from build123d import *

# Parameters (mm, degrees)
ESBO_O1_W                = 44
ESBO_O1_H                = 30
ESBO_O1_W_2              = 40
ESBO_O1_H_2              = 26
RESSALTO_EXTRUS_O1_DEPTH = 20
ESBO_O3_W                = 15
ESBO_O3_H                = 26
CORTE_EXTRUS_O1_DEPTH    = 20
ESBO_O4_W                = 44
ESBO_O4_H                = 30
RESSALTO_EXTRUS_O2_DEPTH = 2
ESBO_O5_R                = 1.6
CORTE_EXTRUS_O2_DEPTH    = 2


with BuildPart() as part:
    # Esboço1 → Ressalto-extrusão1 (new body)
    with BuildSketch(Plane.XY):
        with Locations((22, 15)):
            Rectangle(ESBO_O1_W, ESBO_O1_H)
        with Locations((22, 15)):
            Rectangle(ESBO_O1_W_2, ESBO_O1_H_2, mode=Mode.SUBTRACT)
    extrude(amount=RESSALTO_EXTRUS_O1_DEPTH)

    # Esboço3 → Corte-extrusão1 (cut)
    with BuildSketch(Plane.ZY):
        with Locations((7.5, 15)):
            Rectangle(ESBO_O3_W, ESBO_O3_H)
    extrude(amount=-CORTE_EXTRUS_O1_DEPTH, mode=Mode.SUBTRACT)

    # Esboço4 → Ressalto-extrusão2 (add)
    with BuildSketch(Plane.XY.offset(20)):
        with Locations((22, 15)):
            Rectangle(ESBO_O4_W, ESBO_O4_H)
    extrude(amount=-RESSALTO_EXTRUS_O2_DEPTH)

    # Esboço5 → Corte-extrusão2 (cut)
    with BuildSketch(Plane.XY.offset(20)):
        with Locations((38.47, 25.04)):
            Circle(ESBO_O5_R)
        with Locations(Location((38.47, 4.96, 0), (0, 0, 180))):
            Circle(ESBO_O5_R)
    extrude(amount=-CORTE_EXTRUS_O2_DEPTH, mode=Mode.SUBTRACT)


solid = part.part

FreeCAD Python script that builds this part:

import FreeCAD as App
import Part
import Sketcher

V = App.Vector

doc = App.newDocument("Part")
params = doc.addObject("Spreadsheet::Sheet", "Params")
for row, (alias, value) in enumerate([
    ("sketch1_width", "44 mm"),
    ("sketch1_width2", "40 mm"),
    ("sketch1_height", "30 mm"),
    ("sketch1_height2", "26 mm"),
    ("pad1_length", "20 mm"),
    ("sketch2_width", "26 mm"),
    ("sketch2_height", "15 mm"),
    ("pocket1_length", "20 mm"),
    ("sketch3_width", "44 mm"),
    ("sketch3_height", "30 mm"),
    ("pad2_length", "2 mm"),
    ("sketch4_diameter", "3.2 mm"),
    ("pocket2_length", "2 mm"),
], start=1):
    params.set(f"A{row}", alias)
    params.set(f"B{row}", "=" + value)
    params.setAlias(f"B{row}", alias)

body = doc.addObject("PartDesign::Body", "Body")

sketch1 = doc.addObject("Sketcher::SketchObject", "Sketch")
body.addObject(sketch1)
sketch1.AttachmentSupport = (doc.XY_Plane, [""])
sketch1.MapMode = "FlatFace"
sketch1.addGeometry(Part.LineSegment(V(0, 30, 0), V(0, 0, 0)), False)
sketch1.addGeometry(Part.LineSegment(V(0, 0, 0), V(44, 0, 0)), False)
sketch1.addGeometry(Part.LineSegment(V(44, 0, 0), V(44, 30, 0)), False)
sketch1.addGeometry(Part.LineSegment(V(44, 30, 0), V(0, 30, 0)), False)
sketch1.addGeometry(Part.LineSegment(V(42, 2, 0), V(2, 2, 0)), False)
sketch1.addGeometry(Part.LineSegment(V(2, 2, 0), V(2, 28, 0)), False)
sketch1.addGeometry(Part.LineSegment(V(2, 28, 0), V(42, 28, 0)), False)
sketch1.addGeometry(Part.LineSegment(V(42, 28, 0), V(42, 2, 0)), False)
sketch1.addConstraint(Sketcher.Constraint("Coincident", 0, 2, 1, 1))
sketch1.addConstraint(Sketcher.Constraint("Coincident", 1, 2, 2, 1))
sketch1.addConstraint(Sketcher.Constraint("Coincident", 2, 2, 3, 1))
sketch1.addConstraint(Sketcher.Constraint("Coincident", 3, 2, 0, 1))
sketch1.addConstraint(Sketcher.Constraint("Coincident", 4, 2, 5, 1))
sketch1.addConstraint(Sketcher.Constraint("Coincident", 5, 2, 6, 1))
sketch1.addConstraint(Sketcher.Constraint("Coincident", 6, 2, 7, 1))
sketch1.addConstraint(Sketcher.Constraint("Coincident", 7, 2, 4, 1))
sketch1.addConstraint(Sketcher.Constraint("Vertical", 0))
sketch1.addConstraint(Sketcher.Constraint("Horizontal", 1))
sketch1.addConstraint(Sketcher.Constraint("Vertical", 2))
sketch1.addConstraint(Sketcher.Constraint("Horizontal", 3))
sketch1.addConstraint(Sketcher.Constraint("Horizontal", 4))
sketch1.addConstraint(Sketcher.Constraint("Vertical", 5))
sketch1.addConstraint(Sketcher.Constraint("Horizontal", 6))
sketch1.addConstraint(Sketcher.Constraint("Vertical", 7))
sketch1.addConstraint(Sketcher.Constraint("Coincident", 0, 2, -1, 1))
sketch1.addConstraint(Sketcher.Constraint("DistanceX", 1, 1, 1, 2, 44.0))
sketch1.addConstraint(Sketcher.Constraint("DistanceX", 4, 2, 4, 1, 40.0))
sketch1.addConstraint(Sketcher.Constraint("DistanceY", 0, 2, 0, 1, 30.0))
sketch1.addConstraint(Sketcher.Constraint("DistanceY", 5, 1, 5, 2, 26.0))
sketch1.addConstraint(Sketcher.Constraint("DistanceX", -1, 1, 4, 2, 2.0))
sketch1.addConstraint(Sketcher.Constraint("DistanceY", -1, 1, 4, 2, 2.0))
sketch1.setExpression("Constraints[17]", "Params.sketch1_width")
sketch1.setExpression("Constraints[18]", "Params.sketch1_width2")
sketch1.setExpression("Constraints[19]", "Params.sketch1_height")
sketch1.setExpression("Constraints[20]", "Params.sketch1_height2")
pad1 = doc.addObject("PartDesign::Pad", "Pad")
body.addObject(pad1)
pad1.Profile = sketch1
pad1.setExpression("Length", "Params.pad1_length")

sketch2 = doc.addObject("Sketcher::SketchObject", "Sketch001")
body.addObject(sketch2)
sketch2.AttachmentSupport = (doc.YZ_Plane, [""])
sketch2.MapMode = "FlatFace"
sketch2.addGeometry(Part.LineSegment(V(28, 0, 0), V(2, 0, 0)), False)
sketch2.addGeometry(Part.LineSegment(V(2, 0, 0), V(2, 15, 0)), False)
sketch2.addGeometry(Part.LineSegment(V(2, 15, 0), V(28, 15, 0)), False)
sketch2.addGeometry(Part.LineSegment(V(28, 15, 0), V(28, 0, 0)), False)
sketch2.addConstraint(Sketcher.Constraint("Coincident", 0, 2, 1, 1))
sketch2.addConstraint(Sketcher.Constraint("Coincident", 1, 2, 2, 1))
sketch2.addConstraint(Sketcher.Constraint("Coincident", 2, 2, 3, 1))
sketch2.addConstraint(Sketcher.Constraint("Coincident", 3, 2, 0, 1))
sketch2.addConstraint(Sketcher.Constraint("Horizontal", 0))
sketch2.addConstraint(Sketcher.Constraint("Vertical", 1))
sketch2.addConstraint(Sketcher.Constraint("Horizontal", 2))
sketch2.addConstraint(Sketcher.Constraint("Vertical", 3))
sketch2.addConstraint(Sketcher.Constraint("PointOnObject", 0, 2, -1))
sketch2.addConstraint(Sketcher.Constraint("DistanceX", 0, 2, 0, 1, 26.0))
sketch2.addConstraint(Sketcher.Constraint("DistanceY", 1, 1, 1, 2, 15.0))
sketch2.addConstraint(Sketcher.Constraint("DistanceX", -1, 1, 0, 2, 2.0))
sketch2.setExpression("Constraints[9]", "Params.sketch2_width")
sketch2.setExpression("Constraints[10]", "Params.sketch2_height")
pocket1 = doc.addObject("PartDesign::Pocket", "Pocket")
body.addObject(pocket1)
pocket1.Profile = sketch2
pocket1.setExpression("Length", "Params.pocket1_length")
pocket1.Reversed = True

sketch3 = doc.addObject("Sketcher::SketchObject", "Sketch002")
body.addObject(sketch3)
sketch3.AttachmentSupport = (doc.XY_Plane, [""])
sketch3.MapMode = "FlatFace"
sketch3.AttachmentOffset = App.Placement(V(0, 0, 20), App.Rotation())
sketch3.addGeometry(Part.LineSegment(V(0, 30, 0), V(0, 0, 0)), False)
sketch3.addGeometry(Part.LineSegment(V(0, 0, 0), V(44, 0, 0)), False)
sketch3.addGeometry(Part.LineSegment(V(44, 0, 0), V(44, 30, 0)), False)
sketch3.addGeometry(Part.LineSegment(V(44, 30, 0), V(0, 30, 0)), False)
sketch3.addConstraint(Sketcher.Constraint("Coincident", 0, 2, 1, 1))
sketch3.addConstraint(Sketcher.Constraint("Coincident", 1, 2, 2, 1))
sketch3.addConstraint(Sketcher.Constraint("Coincident", 2, 2, 3, 1))
sketch3.addConstraint(Sketcher.Constraint("Coincident", 3, 2, 0, 1))
sketch3.addConstraint(Sketcher.Constraint("Vertical", 0))
sketch3.addConstraint(Sketcher.Constraint("Horizontal", 1))
sketch3.addConstraint(Sketcher.Constraint("Vertical", 2))
sketch3.addConstraint(Sketcher.Constraint("Horizontal", 3))
sketch3.addConstraint(Sketcher.Constraint("Coincident", 0, 2, -1, 1))
sketch3.addConstraint(Sketcher.Constraint("DistanceX", 1, 1, 1, 2, 44.0))
sketch3.addConstraint(Sketcher.Constraint("DistanceY", 0, 2, 0, 1, 30.0))
sketch3.setExpression("Constraints[9]", "Params.sketch3_width")
sketch3.setExpression("Constraints[10]", "Params.sketch3_height")
pad2 = doc.addObject("PartDesign::Pad", "Pad001")
body.addObject(pad2)
pad2.Profile = sketch3
pad2.setExpression("Length", "Params.pad2_length")
pad2.Reversed = True

sketch4 = doc.addObject("Sketcher::SketchObject", "Sketch003")
body.addObject(sketch4)
sketch4.AttachmentSupport = (doc.XY_Plane, [""])
sketch4.MapMode = "FlatFace"
sketch4.AttachmentOffset = App.Placement(V(0, 0, 20), App.Rotation())
sketch4.addGeometry(Part.Circle(V(38.5, 25, 0), V(0, 0, 1), 1.6), False)
sketch4.addGeometry(Part.Circle(V(38.5, 5, 0), V(0, 0, 1), 1.6), False)
sketch4.addConstraint(Sketcher.Constraint("Equal", 0, 1))
sketch4.addConstraint(Sketcher.Constraint("Vertical", 0, 3, 1, 3))
sketch4.addConstraint(Sketcher.Constraint("Diameter", 0, 3.2))
sketch4.addConstraint(Sketcher.Constraint("DistanceX", -1, 1, 0, 3, 38.47))
sketch4.addConstraint(Sketcher.Constraint("DistanceY", -1, 1, 0, 3, 25.04))
sketch4.addConstraint(Sketcher.Constraint("DistanceY", -1, 1, 1, 3, 4.96))
sketch4.setExpression("Constraints[2]", "Params.sketch4_diameter")
pocket2 = doc.addObject("PartDesign::Pocket", "Pocket001")
body.addObject(pocket2)
pocket2.Profile = sketch4
pocket2.setExpression("Length", "Params.pocket2_length")

doc.recompute()
